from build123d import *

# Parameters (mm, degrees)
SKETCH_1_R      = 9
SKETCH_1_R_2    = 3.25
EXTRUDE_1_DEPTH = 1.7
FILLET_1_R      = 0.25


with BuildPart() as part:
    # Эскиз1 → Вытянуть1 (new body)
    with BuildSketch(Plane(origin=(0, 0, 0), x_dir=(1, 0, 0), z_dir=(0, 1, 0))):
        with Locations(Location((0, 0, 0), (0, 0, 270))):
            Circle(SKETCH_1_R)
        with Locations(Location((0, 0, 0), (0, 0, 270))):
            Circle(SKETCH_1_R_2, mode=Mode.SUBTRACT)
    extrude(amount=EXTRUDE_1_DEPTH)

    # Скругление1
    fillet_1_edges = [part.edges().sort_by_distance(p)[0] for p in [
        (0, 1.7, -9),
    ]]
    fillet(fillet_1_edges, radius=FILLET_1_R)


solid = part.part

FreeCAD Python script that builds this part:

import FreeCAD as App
import Part
import Sketcher

V = App.Vector


def edges_at(feature, points):
    """Names of the edges that pass closest to the given points."""
    edges = feature.Shape.Edges
    near = lambda p: min(range(len(edges)), key=lambda i: edges[i].distToShape(Part.Vertex(*p))[0])
    return sorted({f"Edge{near(p) + 1}" for p in points})

doc = App.newDocument("Part")
body = doc.addObject("PartDesign::Body", "Body")

# Sketch on XZ plane
sketch1 = body.newObject("Sketcher::SketchObject", "Sketch")
sketch1.AttachmentSupport = (doc.getObject("XZ_Plane"), [""])
sketch1.MapMode = "FlatFace"
sketch1.addGeometry([
    Part.Circle(V(0, 0, 0), V(0, 0, 1), 9),
    Part.Circle(V(0, 0, 0), V(0, 0, 1), 3.2),
], False)
sketch1.addConstraint([
    Sketcher.Constraint("Coincident", 0, 3, -1, 1),
    Sketcher.Constraint("Coincident", 1, 3, -1, 1),
    Sketcher.Constraint("Diameter", 0, 18.0),
    Sketcher.Constraint("Diameter", 1, 6.5),
])
pad1 = body.newObject("PartDesign::Pad", "Pad")
pad1.Profile = sketch1
pad1.Length = 1.7
pad1.Reversed = True
doc.recompute()

fillet = body.newObject("PartDesign::Fillet", "Fillet")
fillet.Base = (pad1, edges_at(pad1, [(0, 1.7, -9)]))
fillet.Radius = 0.25

doc.recompute()
